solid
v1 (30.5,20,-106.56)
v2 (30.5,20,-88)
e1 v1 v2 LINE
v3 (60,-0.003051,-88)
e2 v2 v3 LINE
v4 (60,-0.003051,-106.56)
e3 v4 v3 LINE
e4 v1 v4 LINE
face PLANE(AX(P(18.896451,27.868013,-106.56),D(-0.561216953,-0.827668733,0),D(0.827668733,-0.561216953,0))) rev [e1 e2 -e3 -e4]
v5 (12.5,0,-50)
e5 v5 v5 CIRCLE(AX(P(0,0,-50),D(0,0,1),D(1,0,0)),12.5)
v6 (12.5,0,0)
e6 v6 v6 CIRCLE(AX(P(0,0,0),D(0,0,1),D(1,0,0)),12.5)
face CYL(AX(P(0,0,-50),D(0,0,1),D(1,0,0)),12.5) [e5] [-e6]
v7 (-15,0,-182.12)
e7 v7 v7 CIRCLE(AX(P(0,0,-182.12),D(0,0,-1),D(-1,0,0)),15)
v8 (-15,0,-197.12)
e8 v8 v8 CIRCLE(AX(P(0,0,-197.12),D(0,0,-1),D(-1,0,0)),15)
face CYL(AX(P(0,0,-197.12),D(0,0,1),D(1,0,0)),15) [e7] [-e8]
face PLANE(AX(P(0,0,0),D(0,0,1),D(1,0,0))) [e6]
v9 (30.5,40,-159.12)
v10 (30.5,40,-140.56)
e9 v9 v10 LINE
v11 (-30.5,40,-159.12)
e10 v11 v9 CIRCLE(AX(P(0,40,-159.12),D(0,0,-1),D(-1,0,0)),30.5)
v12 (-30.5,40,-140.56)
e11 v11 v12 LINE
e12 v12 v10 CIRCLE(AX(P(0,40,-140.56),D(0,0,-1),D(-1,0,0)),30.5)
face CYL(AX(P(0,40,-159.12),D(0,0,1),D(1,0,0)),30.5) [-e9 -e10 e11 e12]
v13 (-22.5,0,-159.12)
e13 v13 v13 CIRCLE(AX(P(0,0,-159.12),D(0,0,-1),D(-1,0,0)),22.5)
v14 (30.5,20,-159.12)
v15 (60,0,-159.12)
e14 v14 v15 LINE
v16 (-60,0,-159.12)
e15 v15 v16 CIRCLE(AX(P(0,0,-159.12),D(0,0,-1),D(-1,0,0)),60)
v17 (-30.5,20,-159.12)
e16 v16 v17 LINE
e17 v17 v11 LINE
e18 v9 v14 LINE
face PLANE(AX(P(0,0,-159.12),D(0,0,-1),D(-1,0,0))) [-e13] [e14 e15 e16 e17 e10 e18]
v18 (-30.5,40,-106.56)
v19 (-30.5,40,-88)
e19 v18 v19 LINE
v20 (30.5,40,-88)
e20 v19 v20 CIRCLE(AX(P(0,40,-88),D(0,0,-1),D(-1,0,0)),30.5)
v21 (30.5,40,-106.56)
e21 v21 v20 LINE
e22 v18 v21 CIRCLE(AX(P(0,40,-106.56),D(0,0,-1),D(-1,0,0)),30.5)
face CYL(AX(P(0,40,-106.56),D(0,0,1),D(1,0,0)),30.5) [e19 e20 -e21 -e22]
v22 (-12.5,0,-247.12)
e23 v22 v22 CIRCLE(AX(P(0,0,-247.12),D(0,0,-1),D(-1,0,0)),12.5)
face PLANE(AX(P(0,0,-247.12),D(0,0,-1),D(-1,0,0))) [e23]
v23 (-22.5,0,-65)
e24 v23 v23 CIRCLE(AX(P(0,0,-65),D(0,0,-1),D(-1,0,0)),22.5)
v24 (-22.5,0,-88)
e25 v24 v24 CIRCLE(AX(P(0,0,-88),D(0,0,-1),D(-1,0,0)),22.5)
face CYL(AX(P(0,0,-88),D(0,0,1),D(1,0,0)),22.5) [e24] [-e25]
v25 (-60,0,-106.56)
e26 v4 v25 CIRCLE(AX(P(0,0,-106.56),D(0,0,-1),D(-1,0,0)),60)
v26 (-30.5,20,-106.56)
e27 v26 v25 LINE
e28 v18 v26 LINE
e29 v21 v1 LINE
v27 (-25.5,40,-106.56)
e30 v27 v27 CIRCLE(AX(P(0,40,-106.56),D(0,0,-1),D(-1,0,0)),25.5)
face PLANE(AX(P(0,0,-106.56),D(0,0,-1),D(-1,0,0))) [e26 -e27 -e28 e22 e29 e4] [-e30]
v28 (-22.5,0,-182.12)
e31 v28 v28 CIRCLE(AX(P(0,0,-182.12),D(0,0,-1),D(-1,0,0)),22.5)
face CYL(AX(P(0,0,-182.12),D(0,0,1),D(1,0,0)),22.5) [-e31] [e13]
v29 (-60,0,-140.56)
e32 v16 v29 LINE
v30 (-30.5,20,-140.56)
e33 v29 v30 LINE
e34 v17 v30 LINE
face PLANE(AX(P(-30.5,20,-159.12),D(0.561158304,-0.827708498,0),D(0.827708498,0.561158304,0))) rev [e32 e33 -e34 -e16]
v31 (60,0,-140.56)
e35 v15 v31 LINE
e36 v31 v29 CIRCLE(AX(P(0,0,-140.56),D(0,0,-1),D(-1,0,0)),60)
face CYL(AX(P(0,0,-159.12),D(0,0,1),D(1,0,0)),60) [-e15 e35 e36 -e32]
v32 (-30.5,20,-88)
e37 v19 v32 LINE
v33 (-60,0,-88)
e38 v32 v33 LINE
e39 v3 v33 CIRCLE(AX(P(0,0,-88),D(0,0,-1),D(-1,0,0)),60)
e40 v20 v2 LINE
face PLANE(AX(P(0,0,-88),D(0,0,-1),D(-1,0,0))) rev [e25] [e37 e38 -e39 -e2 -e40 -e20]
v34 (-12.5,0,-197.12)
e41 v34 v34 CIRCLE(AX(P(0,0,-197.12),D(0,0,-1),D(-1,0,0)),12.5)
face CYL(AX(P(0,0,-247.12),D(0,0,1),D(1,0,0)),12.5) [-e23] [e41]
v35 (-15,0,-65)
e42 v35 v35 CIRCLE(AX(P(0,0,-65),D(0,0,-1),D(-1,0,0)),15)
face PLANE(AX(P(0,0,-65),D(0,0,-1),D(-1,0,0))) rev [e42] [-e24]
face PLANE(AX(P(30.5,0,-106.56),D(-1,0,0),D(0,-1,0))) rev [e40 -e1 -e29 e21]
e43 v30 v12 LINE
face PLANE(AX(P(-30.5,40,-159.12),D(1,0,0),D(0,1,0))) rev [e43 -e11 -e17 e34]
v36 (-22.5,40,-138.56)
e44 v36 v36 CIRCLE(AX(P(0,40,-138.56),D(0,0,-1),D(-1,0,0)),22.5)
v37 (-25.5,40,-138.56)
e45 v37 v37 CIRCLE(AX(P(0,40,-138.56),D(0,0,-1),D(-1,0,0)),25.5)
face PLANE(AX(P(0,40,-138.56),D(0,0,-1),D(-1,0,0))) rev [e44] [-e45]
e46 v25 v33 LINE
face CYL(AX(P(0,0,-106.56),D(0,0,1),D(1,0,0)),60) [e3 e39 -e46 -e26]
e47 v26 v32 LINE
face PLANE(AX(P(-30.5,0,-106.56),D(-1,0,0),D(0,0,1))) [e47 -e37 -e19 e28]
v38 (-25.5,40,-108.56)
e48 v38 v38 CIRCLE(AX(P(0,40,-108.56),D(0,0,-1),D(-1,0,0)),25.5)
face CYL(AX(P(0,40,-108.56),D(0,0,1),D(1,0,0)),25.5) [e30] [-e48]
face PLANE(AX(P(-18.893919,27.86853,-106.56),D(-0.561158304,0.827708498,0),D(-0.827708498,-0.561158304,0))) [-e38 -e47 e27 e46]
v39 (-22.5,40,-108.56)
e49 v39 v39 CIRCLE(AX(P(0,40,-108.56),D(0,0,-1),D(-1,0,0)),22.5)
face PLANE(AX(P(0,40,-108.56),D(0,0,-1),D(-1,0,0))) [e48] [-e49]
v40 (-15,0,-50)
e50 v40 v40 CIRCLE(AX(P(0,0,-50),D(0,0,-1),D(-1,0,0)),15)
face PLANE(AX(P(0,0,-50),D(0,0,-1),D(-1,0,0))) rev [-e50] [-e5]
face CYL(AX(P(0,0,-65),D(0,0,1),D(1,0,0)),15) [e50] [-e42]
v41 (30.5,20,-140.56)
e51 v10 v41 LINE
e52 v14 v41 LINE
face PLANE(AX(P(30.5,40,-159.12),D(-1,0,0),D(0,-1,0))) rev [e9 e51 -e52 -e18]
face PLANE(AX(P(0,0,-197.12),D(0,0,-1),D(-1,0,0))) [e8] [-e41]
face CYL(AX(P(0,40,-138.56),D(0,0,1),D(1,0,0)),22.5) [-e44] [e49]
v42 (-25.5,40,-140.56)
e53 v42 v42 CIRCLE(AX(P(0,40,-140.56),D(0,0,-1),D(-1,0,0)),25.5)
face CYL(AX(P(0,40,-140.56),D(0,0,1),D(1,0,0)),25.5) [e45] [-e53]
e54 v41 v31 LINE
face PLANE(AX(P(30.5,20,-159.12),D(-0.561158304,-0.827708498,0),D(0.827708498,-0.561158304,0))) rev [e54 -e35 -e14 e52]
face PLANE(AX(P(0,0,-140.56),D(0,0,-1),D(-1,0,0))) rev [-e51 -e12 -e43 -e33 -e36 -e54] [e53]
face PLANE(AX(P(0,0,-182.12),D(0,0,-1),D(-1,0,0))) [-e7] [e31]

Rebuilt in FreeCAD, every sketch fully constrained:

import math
import FreeCAD as App
import Part
import Sketcher
Q = App.Units.Quantity

doc = App.newDocument("Part")
body = doc.addObject("PartDesign::Body", "Body")

# Sketch on XY plane
sketch1 = body.newObject("Sketcher::SketchObject", "Sketch")
sketch1.AttachmentSupport = (doc.getObject("XY_Plane"), [""])
sketch1.MapMode = "FlatFace"
sketch1.addGeometry(Part.Circle(App.Vector(0, 0, 0), App.Vector(0, 0, 1), 12), False)
sketch1.addConstraint(Sketcher.Constraint("Coincident", 0, 3, -1, 1))
sketch1.addConstraint(Sketcher.Constraint("Diameter", 0, 25.0))
pad1 = body.newObject("PartDesign::Pad", "Pad")
pad1.Profile = sketch1
pad1.Length = 50
pad1.Reversed = True

# Sketch on XY plane
sketch2 = body.newObject("Sketcher::SketchObject", "Sketch001")
sketch2.AttachmentSupport = (doc.getObject("XY_Plane"), [""])
sketch2.MapMode = "FlatFace"
sketch2.AttachmentOffset = App.Placement(App.Vector(0, 0, -50), App.Rotation())
sketch2.addGeometry(Part.Circle(App.Vector(0, 0, 0), App.Vector(0, 0, 1), 15), False)
sketch2.addConstraint(Sketcher.Constraint("Coincident", 0, 3, -1, 1))
sketch2.addConstraint(Sketcher.Constraint("Diameter", 0, 30.0))
pad2 = body.newObject("PartDesign::Pad", "Pad001")
pad2.Profile = sketch2
pad2.Length = 15
pad2.Reversed = True

# Sketch on XY plane
sketch3 = body.newObject("Sketcher::SketchObject", "Sketch002")
sketch3.AttachmentSupport = (doc.getObject("XY_Plane"), [""])
sketch3.MapMode = "FlatFace"
sketch3.AttachmentOffset = App.Placement(App.Vector(0, 0, -65), App.Rotation())
sketch3.addGeometry(Part.Circle(App.Vector(0, 0, 0), App.Vector(0, 0, 1), 22), False)
sketch3.addConstraint(Sketcher.Constraint("Coincident", 0, 3, -1, 1))
sketch3.addConstraint(Sketcher.Constraint("Diameter", 0, 45.0))
pad3 = body.newObject("PartDesign::Pad", "Pad002")
pad3.Profile = sketch3
pad3.Length = 23
pad3.Reversed = True
body2 = doc.addObject("PartDesign::Body", "Body001")

# Sketch on XY plane
sketch4 = body2.newObject("Sketcher::SketchObject", "Sketch003")
sketch4.AttachmentSupport = (doc.getObject("XY_Plane001"), [""])
sketch4.MapMode = "FlatFace"
sketch4.AttachmentOffset = App.Placement(App.Vector(0, 0, -88), App.Rotation())
sketch4.addGeometry(Part.ArcOfCircle(Part.Circle(App.Vector(0, 40, 0), App.Vector(0, 0, 1), 30), math.radians(0), math.radians(180)), False)
sketch4.addGeometry(Part.LineSegment(App.Vector(30, 40, 0), App.Vector(30, 20, 0)), False)
sketch4.addGeometry(Part.LineSegment(App.Vector(30, 20, 0), App.Vector(60, 0, 0)), False)
sketch4.addGeometry(Part.ArcOfCircle(Part.Circle(App.Vector(0, 0, 0), App.Vector(0, 0, 1), 60), math.radians(180), math.radians(360)), False)
sketch4.addGeometry(Part.LineSegment(App.Vector(-60, 0, 0), App.Vector(-30, 20, 0)), False)
sketch4.addGeometry(Part.LineSegment(App.Vector(-30, 20, 0), App.Vector(-30, 40, 0)), False)
sketch4.addGeometry(Part.Circle(App.Vector(0, 0, 0), App.Vector(0, 0, 1), 22), False)
sketch4.addConstraint(Sketcher.Constraint("Tangent", 0, 1, 1, 1))
sketch4.addConstraint(Sketcher.Constraint("Coincident", 1, 2, 2, 1))
sketch4.addConstraint(Sketcher.Constraint("Coincident", 2, 2, 3, 2))
sketch4.addConstraint(Sketcher.Constraint("Coincident", 3, 1, 4, 1))
sketch4.addConstraint(Sketcher.Constraint("Coincident", 4, 2, 5, 1))
sketch4.addConstraint(Sketcher.Constraint("Tangent", 5, 2, 0, 2))
sketch4.addConstraint(Sketcher.Constraint("Vertical", 1))
sketch4.addConstraint(Sketcher.Constraint("Vertical", 5))
sketch4.addConstraint(Sketcher.Constraint("Coincident", 3, 3, -1, 1))
sketch4.addConstraint(Sketcher.Constraint("Coincident", 6, 3, -1, 1))
sketch4.addConstraint(Sketcher.Constraint("Symmetric", 1, 2, 4, 2, -2))
sketch4.addConstraint(Sketcher.Constraint("PointOnObject", 3, 1, -1))
sketch4.addConstraint(Sketcher.Constraint("Diameter", 6, 45.0))
sketch4.addConstraint(Sketcher.Constraint("Radius", 3, 60.0))
sketch4.addConstraint(Sketcher.Constraint("Radius", 0, 30.5))
sketch4.addConstraint(Sketcher.Constraint("DistanceY", 1, 2, 1, 1, 20.0))
sketch4.addConstraint(Sketcher.Constraint("DistanceY", -1, 1, 0, 3, 40.0))
sketch4.addConstraint(Sketcher.Constraint("Angle", 2, Q("-34.14 deg")))
pad4 = body2.newObject("PartDesign::Pad", "Pad003")
pad4.Profile = sketch4
pad4.Length = 18.56
pad4.Reversed = True
body.AllowCompound = True
doc.recompute()

boolean = body.newObject("PartDesign::Boolean", "Boolean")
boolean.Type = "Fuse"
boolean.addObjects([body2])

# Sketch on XY plane
sketch5 = body.newObject("Sketcher::SketchObject", "Sketch004")
sketch5.AttachmentSupport = (doc.getObject("XY_Plane"), [""])
sketch5.MapMode = "FlatFace"
sketch5.AttachmentOffset = App.Placement(App.Vector(0, 0, -106.56), App.Rotation())
sketch5.addGeometry(Part.Circle(App.Vector(0, 0, 0), App.Vector(0, 0, 1), 22), False)
sketch5.addConstraint(Sketcher.Constraint("Coincident", 0, 3, -1, 1))
sketch5.addConstraint(Sketcher.Constraint("Diameter", 0, 45.0))
pad5 = body.newObject("PartDesign::Pad", "Pad004")
pad5.Profile = sketch5
pad5.Length = 18.56

# Sketch on XY plane
sketch6 = body.newObject("Sketcher::SketchObject", "Sketch005")
sketch6.AttachmentSupport = (doc.getObject("XY_Plane"), [""])
sketch6.MapMode = "FlatFace"
sketch6.AttachmentOffset = App.Placement(App.Vector(0, 0, -106.56), App.Rotation())
sketch6.addGeometry(Part.Circle(App.Vector(0, 40, 0), App.Vector(0, 0, 1), 26), False)
sketch6.addConstraint(Sketcher.Constraint("PointOnObject", 0, 3, -2))
sketch6.addConstraint(Sketcher.Constraint("Diameter", 0, 51.0))
sketch6.addConstraint(Sketcher.Constraint("DistanceY", -1, 1, 0, 3, 40.0))
pad6 = body.newObject("PartDesign::Pad", "Pad005")
pad6.Profile = sketch6
pad6.Length = 2
pad6.Reversed = True

# Sketch on XY plane
sketch7 = body.newObject("Sketcher::SketchObject", "Sketch006")
sketch7.AttachmentSupport = (doc.getObject("XY_Plane"), [""])
sketch7.MapMode = "FlatFace"
sketch7.AttachmentOffset = App.Placement(App.Vector(0, 0, -108.56), App.Rotation())
sketch7.addGeometry(Part.Circle(App.Vector(0, 40, 0), App.Vector(0, 0, 1), 22), False)
sketch7.addConstraint(Sketcher.Constraint("PointOnObject", 0, 3, -2))
sketch7.addConstraint(Sketcher.Constraint("Diameter", 0, 45.0))
sketch7.addConstraint(Sketcher.Constraint("DistanceY", -1, 1, 0, 3, 40.0))
pad7 = body.newObject("PartDesign::Pad", "Pad006")
pad7.Profile = sketch7
pad7.Length = 30
pad7.Reversed = True

# Sketch on XY plane
sketch8 = body.newObject("Sketcher::SketchObject", "Sketch007")
sketch8.AttachmentSupport = (doc.getObject("XY_Plane"), [""])
sketch8.MapMode = "FlatFace"
sketch8.AttachmentOffset = App.Placement(App.Vector(0, 0, -138.56), App.Rotation())
sketch8.addGeometry(Part.Circle(App.Vector(0, 40, 0), App.Vector(0, 0, 1), 26), False)
sketch8.addConstraint(Sketcher.Constraint("PointOnObject", 0, 3, -2))
sketch8.addConstraint(Sketcher.Constraint("Diameter", 0, 51.0))
sketch8.addConstraint(Sketcher.Constraint("DistanceY", -1, 1, 0, 3, 40.0))
pad8 = body.newObject("PartDesign::Pad", "Pad007")
pad8.Profile = sketch8
pad8.Length = 2
pad8.Reversed = True

# Sketch on XY plane
sketch9 = body.newObject("Sketcher::SketchObject", "Sketch008")
sketch9.AttachmentSupport = (doc.getObject("XY_Plane"), [""])
sketch9.MapMode = "FlatFace"
sketch9.AttachmentOffset = App.Placement(App.Vector(0, 0, -140.56), App.Rotation())
sketch9.addGeometry(Part.LineSegment(App.Vector(30, 40, 0), App.Vector(30, 20, 0)), False)
sketch9.addGeometry(Part.LineSegment(App.Vector(30, 20, 0), App.Vector(60, 0, 0)), False)
sketch9.addGeometry(Part.ArcOfCircle(Part.Circle(App.Vector(0, 0, 0), App.Vector(0, 0, 1), 60), math.radians(180), math.radians(360)), False)
sketch9.addGeometry(Part.LineSegment(App.Vector(-60, 0, 0), App.Vector(-30, 20, 0)), False)
sketch9.addGeometry(Part.LineSegment(App.Vector(-30, 20, 0), App.Vector(-30, 40, 0)), False)
sketch9.addGeometry(Part.ArcOfCircle(Part.Circle(App.Vector(0, 40, 0), App.Vector(0, 0, 1), 30), math.radians(0), math.radians(180)), False)
sketch9.addConstraint(Sketcher.Constraint("Coincident", 0, 2, 1, 1))
sketch9.addConstraint(Sketcher.Constraint("Coincident", 1, 2, 2, 2))
sketch9.addConstraint(Sketcher.Constraint("Coincident", 2, 1, 3, 1))
sketch9.addConstraint(Sketcher.Constraint("Coincident", 3, 2, 4, 1))
sketch9.addConstraint(Sketcher.Constraint("Tangent", 4, 2, 5, 2))
sketch9.addConstraint(Sketcher.Constraint("Tangent", 5, 1, 0, 1))
sketch9.addConstraint(Sketcher.Constraint("Vertical", 0))
sketch9.addConstraint(Sketcher.Constraint("Vertical", 4))
sketch9.addConstraint(Sketcher.Constraint("Coincident", 2, 3, -1, 1))
sketch9.addConstraint(Sketcher.Constraint("Symmetric", 0, 2, 3, 2, -2))
sketch9.addConstraint(Sketcher.Constraint("PointOnObject", 1, 2, -1))
sketch9.addConstraint(Sketcher.Constraint("PointOnObject", 2, 1, -1))
sketch9.addConstraint(Sketcher.Constraint("Radius", 2, 60.0))
sketch9.addConstraint(Sketcher.Constraint("Radius", 5, 30.5))
sketch9.addConstraint(Sketcher.Constraint("DistanceY", 0, 2, 0, 1, 20.0))
sketch9.addConstraint(Sketcher.Constraint("DistanceY", -1, 1, 5, 3, 40.0))
pad9 = body.newObject("PartDesign::Pad", "Pad008")
pad9.Profile = sketch9
pad9.Length = 18.56
pad9.Reversed = True

# Sketch on XY plane
sketch10 = body.newObject("Sketcher::SketchObject", "Sketch009")
sketch10.AttachmentSupport = (doc.getObject("XY_Plane"), [""])
sketch10.MapMode = "FlatFace"
sketch10.AttachmentOffset = App.Placement(App.Vector(0, 0, -159.12), App.Rotation())
sketch10.addGeometry(Part.Circle(App.Vector(0, 0, 0), App.Vector(0, 0, 1), 22), False)
sketch10.addConstraint(Sketcher.Constraint("Coincident", 0, 3, -1, 1))
sketch10.addConstraint(Sketcher.Constraint("Diameter", 0, 45.0))
pad10 = body.newObject("PartDesign::Pad", "Pad009")
pad10.Profile = sketch10
pad10.Length = 23
pad10.Reversed = True

# Sketch on XY plane
sketch11 = body.newObject("Sketcher::SketchObject", "Sketch010")
sketch11.AttachmentSupport = (doc.getObject("XY_Plane"), [""])
sketch11.MapMode = "FlatFace"
sketch11.AttachmentOffset = App.Placement(App.Vector(0, 0, -182.12), App.Rotation())
sketch11.addGeometry(Part.Circle(App.Vector(0, 0, 0), App.Vector(0, 0, 1), 15), False)
sketch11.addConstraint(Sketcher.Constraint("Coincident", 0, 3, -1, 1))
sketch11.addConstraint(Sketcher.Constraint("Diameter", 0, 30.0))
pad11 = body.newObject("PartDesign::Pad", "Pad010")
pad11.Profile = sketch11
pad11.Length = 15
pad11.Reversed = True

# Sketch on XY plane
sketch12 = body.newObject("Sketcher::SketchObject", "Sketch011")
sketch12.AttachmentSupport = (doc.getObject("XY_Plane"), [""])
sketch12.MapMode = "FlatFace"
sketch12.AttachmentOffset = App.Placement(App.Vector(0, 0, -197.12), App.Rotation())
sketch12.addGeometry(Part.Circle(App.Vector(0, 0, 0), App.Vector(0, 0, 1), 12), False)
sketch12.addConstraint(Sketcher.Constraint("Coincident", 0, 3, -1, 1))
sketch12.addConstraint(Sketcher.Constraint("Diameter", 0, 25.0))
pad12 = body.newObject("PartDesign::Pad", "Pad011")
pad12.Profile = sketch12
pad12.Length = 50
pad12.Reversed = True

doc.recompute()
